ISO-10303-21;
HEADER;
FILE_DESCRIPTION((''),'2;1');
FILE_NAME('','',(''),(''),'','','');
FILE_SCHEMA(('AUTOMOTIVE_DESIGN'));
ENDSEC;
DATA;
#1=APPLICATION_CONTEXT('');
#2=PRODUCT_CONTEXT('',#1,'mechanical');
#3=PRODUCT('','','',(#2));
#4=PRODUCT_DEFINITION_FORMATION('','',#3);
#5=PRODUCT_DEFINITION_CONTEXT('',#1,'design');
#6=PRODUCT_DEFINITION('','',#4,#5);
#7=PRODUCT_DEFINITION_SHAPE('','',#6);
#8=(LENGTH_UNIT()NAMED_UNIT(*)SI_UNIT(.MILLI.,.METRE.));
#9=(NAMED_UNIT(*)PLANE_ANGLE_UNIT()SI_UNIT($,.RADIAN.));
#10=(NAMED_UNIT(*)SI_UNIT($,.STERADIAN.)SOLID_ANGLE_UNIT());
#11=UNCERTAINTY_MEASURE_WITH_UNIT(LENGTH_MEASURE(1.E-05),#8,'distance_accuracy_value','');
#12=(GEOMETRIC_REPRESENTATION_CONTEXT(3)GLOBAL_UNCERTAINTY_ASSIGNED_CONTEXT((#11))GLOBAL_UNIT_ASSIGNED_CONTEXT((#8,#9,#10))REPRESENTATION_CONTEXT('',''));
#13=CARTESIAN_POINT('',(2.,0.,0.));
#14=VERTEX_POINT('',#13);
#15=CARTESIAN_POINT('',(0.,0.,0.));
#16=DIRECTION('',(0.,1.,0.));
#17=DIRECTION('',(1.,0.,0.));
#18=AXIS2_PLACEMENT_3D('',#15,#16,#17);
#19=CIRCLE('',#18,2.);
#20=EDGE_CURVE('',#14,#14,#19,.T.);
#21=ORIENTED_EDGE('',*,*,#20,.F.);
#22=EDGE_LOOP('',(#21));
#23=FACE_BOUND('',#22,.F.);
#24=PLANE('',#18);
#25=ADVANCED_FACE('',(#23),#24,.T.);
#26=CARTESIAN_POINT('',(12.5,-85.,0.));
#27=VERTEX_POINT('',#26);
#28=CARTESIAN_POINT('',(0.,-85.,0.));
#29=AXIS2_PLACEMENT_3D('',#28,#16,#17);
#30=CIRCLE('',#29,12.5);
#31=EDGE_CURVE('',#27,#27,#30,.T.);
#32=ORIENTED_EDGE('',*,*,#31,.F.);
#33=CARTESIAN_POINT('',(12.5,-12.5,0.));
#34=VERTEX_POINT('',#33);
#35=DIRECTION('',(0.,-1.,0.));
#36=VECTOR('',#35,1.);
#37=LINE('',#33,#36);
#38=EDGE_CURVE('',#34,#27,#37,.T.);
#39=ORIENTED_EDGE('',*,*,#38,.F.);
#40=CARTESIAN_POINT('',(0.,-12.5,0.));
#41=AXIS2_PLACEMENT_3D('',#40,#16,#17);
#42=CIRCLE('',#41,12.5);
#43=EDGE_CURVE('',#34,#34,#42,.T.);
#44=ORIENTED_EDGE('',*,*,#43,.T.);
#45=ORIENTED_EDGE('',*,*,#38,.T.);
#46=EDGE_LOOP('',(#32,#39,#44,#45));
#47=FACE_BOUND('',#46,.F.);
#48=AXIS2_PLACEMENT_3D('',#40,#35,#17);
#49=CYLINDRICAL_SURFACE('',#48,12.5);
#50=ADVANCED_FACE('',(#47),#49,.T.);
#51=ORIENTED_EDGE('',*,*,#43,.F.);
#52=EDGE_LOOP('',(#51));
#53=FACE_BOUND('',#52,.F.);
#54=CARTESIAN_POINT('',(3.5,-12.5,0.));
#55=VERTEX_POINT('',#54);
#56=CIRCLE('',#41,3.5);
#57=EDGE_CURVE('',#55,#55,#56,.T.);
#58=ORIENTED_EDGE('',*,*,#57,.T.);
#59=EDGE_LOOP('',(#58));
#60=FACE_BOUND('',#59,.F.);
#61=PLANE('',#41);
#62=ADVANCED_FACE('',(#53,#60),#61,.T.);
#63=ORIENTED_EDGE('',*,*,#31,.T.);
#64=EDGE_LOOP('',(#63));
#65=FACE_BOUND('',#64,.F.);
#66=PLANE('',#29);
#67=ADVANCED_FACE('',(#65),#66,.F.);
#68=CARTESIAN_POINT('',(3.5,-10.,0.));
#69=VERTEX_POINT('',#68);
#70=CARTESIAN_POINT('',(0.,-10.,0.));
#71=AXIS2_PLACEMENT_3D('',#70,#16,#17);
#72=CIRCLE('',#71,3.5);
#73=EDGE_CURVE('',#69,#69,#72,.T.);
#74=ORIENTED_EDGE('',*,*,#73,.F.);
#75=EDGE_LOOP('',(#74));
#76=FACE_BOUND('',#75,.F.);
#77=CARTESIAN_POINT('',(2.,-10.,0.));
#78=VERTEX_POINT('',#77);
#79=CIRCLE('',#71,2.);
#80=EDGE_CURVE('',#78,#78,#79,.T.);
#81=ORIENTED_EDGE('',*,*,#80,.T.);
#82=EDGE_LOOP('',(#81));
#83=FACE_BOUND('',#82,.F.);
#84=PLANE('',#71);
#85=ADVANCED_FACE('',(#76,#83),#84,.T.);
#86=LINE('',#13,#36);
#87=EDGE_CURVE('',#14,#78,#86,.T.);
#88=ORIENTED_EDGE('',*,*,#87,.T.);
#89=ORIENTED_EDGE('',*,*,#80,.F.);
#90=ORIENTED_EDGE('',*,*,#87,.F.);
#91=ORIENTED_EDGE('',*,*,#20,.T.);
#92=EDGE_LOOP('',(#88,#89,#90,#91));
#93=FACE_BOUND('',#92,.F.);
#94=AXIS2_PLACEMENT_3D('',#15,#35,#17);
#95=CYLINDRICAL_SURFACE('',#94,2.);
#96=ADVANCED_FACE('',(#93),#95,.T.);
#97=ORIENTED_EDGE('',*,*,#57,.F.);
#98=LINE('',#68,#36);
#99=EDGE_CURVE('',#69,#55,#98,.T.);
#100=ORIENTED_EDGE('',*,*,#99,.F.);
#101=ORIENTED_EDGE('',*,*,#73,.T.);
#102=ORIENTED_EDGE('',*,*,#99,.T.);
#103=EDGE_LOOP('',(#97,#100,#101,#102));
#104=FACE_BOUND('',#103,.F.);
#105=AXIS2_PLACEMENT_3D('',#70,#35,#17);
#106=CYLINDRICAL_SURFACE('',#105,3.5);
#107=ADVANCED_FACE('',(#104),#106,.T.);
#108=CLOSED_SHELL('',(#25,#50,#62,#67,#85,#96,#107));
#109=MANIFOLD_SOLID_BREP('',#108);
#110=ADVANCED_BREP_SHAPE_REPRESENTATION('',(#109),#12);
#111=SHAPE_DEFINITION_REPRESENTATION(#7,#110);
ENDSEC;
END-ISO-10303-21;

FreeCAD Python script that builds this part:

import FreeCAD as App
import Part
import Sketcher


def add_polygon(sketch, points):
    """Adds a closed chain of lines whose ends are joined by coincident constraints."""
    first, n = sketch.GeometryCount, len(points)
    for a, b in zip(points, points[1:] + points[:1]):
        sketch.addGeometry(Part.LineSegment(App.Vector(*a, 0), App.Vector(*b, 0)), False)
    for i in range(n):
        sketch.addConstraint(Sketcher.Constraint("Coincident", first + i, 2, first + (i + 1) % n, 1))

doc = App.newDocument("Part")
params = doc.addObject("Spreadsheet::Sheet", "Params")
for row, (alias, value) in enumerate([
    ("sketch1_width", "2 mm"),
    ("sketch1_width2", "12.5 mm"),
    ("sketch1_height", "72.5 mm"),
    ("sketch1_height2", "2.5 mm"),
    ("revolution_angle", "360 deg"),
], start=1):
    params.set(f"A{row}", alias)
    params.set(f"B{row}", "=" + value)
    params.setAlias(f"B{row}", alias)

body = doc.addObject("PartDesign::Body", "Body")

sketch1 = doc.addObject("Sketcher::SketchObject", "Sketch")
body.addObject(sketch1)
sketch1.AttachmentSupport = (doc.XY_Plane, [""])
sketch1.MapMode = "FlatFace"
add_polygon(sketch1, [(2, 0), (0, 0), (0, -85), (12.5, -85), (12.5, -12.5), (3.5, -12.5), (3.5, -10), (2, -10)])
sketch1.addConstraint([
    Sketcher.Constraint("Horizontal", 0),
    Sketcher.Constraint("Vertical", 1),
    Sketcher.Constraint("Horizontal", 2),
    Sketcher.Constraint("Vertical", 3),
    Sketcher.Constraint("Horizontal", 4),
    Sketcher.Constraint("Vertical", 5),
    Sketcher.Constraint("Horizontal", 6),
    Sketcher.Constraint("Vertical", 7),
    Sketcher.Constraint("Coincident", 0, 2, -1, 1),
    Sketcher.Constraint("DistanceX", 0, 2, 0, 1, 2.0),
    Sketcher.Constraint("DistanceX", 2, 1, 2, 2, 12.5),
    Sketcher.Constraint("DistanceY", 3, 1, 3, 2, 72.5),
    Sketcher.Constraint("DistanceY", 5, 1, 5, 2, 2.5),
    Sketcher.Constraint("DistanceY", 3, 2, -1, 1, 12.5),
    Sketcher.Constraint("DistanceX", -1, 1, 4, 2, 3.5),
])
sketch1.setExpression("Constraints[17]", "Params.sketch1_width")
sketch1.setExpression("Constraints[18]", "Params.sketch1_width2")
sketch1.setExpression("Constraints[19]", "Params.sketch1_height")
sketch1.setExpression("Constraints[20]", "Params.sketch1_height2")
revolution = doc.addObject("PartDesign::Revolution", "Revolution")
body.addObject(revolution)
revolution.Profile = sketch1
revolution.ReferenceAxis = (sketch1, ["V_Axis"])
revolution.setExpression("Angle", "Params.revolution_angle")

doc.recompute()
